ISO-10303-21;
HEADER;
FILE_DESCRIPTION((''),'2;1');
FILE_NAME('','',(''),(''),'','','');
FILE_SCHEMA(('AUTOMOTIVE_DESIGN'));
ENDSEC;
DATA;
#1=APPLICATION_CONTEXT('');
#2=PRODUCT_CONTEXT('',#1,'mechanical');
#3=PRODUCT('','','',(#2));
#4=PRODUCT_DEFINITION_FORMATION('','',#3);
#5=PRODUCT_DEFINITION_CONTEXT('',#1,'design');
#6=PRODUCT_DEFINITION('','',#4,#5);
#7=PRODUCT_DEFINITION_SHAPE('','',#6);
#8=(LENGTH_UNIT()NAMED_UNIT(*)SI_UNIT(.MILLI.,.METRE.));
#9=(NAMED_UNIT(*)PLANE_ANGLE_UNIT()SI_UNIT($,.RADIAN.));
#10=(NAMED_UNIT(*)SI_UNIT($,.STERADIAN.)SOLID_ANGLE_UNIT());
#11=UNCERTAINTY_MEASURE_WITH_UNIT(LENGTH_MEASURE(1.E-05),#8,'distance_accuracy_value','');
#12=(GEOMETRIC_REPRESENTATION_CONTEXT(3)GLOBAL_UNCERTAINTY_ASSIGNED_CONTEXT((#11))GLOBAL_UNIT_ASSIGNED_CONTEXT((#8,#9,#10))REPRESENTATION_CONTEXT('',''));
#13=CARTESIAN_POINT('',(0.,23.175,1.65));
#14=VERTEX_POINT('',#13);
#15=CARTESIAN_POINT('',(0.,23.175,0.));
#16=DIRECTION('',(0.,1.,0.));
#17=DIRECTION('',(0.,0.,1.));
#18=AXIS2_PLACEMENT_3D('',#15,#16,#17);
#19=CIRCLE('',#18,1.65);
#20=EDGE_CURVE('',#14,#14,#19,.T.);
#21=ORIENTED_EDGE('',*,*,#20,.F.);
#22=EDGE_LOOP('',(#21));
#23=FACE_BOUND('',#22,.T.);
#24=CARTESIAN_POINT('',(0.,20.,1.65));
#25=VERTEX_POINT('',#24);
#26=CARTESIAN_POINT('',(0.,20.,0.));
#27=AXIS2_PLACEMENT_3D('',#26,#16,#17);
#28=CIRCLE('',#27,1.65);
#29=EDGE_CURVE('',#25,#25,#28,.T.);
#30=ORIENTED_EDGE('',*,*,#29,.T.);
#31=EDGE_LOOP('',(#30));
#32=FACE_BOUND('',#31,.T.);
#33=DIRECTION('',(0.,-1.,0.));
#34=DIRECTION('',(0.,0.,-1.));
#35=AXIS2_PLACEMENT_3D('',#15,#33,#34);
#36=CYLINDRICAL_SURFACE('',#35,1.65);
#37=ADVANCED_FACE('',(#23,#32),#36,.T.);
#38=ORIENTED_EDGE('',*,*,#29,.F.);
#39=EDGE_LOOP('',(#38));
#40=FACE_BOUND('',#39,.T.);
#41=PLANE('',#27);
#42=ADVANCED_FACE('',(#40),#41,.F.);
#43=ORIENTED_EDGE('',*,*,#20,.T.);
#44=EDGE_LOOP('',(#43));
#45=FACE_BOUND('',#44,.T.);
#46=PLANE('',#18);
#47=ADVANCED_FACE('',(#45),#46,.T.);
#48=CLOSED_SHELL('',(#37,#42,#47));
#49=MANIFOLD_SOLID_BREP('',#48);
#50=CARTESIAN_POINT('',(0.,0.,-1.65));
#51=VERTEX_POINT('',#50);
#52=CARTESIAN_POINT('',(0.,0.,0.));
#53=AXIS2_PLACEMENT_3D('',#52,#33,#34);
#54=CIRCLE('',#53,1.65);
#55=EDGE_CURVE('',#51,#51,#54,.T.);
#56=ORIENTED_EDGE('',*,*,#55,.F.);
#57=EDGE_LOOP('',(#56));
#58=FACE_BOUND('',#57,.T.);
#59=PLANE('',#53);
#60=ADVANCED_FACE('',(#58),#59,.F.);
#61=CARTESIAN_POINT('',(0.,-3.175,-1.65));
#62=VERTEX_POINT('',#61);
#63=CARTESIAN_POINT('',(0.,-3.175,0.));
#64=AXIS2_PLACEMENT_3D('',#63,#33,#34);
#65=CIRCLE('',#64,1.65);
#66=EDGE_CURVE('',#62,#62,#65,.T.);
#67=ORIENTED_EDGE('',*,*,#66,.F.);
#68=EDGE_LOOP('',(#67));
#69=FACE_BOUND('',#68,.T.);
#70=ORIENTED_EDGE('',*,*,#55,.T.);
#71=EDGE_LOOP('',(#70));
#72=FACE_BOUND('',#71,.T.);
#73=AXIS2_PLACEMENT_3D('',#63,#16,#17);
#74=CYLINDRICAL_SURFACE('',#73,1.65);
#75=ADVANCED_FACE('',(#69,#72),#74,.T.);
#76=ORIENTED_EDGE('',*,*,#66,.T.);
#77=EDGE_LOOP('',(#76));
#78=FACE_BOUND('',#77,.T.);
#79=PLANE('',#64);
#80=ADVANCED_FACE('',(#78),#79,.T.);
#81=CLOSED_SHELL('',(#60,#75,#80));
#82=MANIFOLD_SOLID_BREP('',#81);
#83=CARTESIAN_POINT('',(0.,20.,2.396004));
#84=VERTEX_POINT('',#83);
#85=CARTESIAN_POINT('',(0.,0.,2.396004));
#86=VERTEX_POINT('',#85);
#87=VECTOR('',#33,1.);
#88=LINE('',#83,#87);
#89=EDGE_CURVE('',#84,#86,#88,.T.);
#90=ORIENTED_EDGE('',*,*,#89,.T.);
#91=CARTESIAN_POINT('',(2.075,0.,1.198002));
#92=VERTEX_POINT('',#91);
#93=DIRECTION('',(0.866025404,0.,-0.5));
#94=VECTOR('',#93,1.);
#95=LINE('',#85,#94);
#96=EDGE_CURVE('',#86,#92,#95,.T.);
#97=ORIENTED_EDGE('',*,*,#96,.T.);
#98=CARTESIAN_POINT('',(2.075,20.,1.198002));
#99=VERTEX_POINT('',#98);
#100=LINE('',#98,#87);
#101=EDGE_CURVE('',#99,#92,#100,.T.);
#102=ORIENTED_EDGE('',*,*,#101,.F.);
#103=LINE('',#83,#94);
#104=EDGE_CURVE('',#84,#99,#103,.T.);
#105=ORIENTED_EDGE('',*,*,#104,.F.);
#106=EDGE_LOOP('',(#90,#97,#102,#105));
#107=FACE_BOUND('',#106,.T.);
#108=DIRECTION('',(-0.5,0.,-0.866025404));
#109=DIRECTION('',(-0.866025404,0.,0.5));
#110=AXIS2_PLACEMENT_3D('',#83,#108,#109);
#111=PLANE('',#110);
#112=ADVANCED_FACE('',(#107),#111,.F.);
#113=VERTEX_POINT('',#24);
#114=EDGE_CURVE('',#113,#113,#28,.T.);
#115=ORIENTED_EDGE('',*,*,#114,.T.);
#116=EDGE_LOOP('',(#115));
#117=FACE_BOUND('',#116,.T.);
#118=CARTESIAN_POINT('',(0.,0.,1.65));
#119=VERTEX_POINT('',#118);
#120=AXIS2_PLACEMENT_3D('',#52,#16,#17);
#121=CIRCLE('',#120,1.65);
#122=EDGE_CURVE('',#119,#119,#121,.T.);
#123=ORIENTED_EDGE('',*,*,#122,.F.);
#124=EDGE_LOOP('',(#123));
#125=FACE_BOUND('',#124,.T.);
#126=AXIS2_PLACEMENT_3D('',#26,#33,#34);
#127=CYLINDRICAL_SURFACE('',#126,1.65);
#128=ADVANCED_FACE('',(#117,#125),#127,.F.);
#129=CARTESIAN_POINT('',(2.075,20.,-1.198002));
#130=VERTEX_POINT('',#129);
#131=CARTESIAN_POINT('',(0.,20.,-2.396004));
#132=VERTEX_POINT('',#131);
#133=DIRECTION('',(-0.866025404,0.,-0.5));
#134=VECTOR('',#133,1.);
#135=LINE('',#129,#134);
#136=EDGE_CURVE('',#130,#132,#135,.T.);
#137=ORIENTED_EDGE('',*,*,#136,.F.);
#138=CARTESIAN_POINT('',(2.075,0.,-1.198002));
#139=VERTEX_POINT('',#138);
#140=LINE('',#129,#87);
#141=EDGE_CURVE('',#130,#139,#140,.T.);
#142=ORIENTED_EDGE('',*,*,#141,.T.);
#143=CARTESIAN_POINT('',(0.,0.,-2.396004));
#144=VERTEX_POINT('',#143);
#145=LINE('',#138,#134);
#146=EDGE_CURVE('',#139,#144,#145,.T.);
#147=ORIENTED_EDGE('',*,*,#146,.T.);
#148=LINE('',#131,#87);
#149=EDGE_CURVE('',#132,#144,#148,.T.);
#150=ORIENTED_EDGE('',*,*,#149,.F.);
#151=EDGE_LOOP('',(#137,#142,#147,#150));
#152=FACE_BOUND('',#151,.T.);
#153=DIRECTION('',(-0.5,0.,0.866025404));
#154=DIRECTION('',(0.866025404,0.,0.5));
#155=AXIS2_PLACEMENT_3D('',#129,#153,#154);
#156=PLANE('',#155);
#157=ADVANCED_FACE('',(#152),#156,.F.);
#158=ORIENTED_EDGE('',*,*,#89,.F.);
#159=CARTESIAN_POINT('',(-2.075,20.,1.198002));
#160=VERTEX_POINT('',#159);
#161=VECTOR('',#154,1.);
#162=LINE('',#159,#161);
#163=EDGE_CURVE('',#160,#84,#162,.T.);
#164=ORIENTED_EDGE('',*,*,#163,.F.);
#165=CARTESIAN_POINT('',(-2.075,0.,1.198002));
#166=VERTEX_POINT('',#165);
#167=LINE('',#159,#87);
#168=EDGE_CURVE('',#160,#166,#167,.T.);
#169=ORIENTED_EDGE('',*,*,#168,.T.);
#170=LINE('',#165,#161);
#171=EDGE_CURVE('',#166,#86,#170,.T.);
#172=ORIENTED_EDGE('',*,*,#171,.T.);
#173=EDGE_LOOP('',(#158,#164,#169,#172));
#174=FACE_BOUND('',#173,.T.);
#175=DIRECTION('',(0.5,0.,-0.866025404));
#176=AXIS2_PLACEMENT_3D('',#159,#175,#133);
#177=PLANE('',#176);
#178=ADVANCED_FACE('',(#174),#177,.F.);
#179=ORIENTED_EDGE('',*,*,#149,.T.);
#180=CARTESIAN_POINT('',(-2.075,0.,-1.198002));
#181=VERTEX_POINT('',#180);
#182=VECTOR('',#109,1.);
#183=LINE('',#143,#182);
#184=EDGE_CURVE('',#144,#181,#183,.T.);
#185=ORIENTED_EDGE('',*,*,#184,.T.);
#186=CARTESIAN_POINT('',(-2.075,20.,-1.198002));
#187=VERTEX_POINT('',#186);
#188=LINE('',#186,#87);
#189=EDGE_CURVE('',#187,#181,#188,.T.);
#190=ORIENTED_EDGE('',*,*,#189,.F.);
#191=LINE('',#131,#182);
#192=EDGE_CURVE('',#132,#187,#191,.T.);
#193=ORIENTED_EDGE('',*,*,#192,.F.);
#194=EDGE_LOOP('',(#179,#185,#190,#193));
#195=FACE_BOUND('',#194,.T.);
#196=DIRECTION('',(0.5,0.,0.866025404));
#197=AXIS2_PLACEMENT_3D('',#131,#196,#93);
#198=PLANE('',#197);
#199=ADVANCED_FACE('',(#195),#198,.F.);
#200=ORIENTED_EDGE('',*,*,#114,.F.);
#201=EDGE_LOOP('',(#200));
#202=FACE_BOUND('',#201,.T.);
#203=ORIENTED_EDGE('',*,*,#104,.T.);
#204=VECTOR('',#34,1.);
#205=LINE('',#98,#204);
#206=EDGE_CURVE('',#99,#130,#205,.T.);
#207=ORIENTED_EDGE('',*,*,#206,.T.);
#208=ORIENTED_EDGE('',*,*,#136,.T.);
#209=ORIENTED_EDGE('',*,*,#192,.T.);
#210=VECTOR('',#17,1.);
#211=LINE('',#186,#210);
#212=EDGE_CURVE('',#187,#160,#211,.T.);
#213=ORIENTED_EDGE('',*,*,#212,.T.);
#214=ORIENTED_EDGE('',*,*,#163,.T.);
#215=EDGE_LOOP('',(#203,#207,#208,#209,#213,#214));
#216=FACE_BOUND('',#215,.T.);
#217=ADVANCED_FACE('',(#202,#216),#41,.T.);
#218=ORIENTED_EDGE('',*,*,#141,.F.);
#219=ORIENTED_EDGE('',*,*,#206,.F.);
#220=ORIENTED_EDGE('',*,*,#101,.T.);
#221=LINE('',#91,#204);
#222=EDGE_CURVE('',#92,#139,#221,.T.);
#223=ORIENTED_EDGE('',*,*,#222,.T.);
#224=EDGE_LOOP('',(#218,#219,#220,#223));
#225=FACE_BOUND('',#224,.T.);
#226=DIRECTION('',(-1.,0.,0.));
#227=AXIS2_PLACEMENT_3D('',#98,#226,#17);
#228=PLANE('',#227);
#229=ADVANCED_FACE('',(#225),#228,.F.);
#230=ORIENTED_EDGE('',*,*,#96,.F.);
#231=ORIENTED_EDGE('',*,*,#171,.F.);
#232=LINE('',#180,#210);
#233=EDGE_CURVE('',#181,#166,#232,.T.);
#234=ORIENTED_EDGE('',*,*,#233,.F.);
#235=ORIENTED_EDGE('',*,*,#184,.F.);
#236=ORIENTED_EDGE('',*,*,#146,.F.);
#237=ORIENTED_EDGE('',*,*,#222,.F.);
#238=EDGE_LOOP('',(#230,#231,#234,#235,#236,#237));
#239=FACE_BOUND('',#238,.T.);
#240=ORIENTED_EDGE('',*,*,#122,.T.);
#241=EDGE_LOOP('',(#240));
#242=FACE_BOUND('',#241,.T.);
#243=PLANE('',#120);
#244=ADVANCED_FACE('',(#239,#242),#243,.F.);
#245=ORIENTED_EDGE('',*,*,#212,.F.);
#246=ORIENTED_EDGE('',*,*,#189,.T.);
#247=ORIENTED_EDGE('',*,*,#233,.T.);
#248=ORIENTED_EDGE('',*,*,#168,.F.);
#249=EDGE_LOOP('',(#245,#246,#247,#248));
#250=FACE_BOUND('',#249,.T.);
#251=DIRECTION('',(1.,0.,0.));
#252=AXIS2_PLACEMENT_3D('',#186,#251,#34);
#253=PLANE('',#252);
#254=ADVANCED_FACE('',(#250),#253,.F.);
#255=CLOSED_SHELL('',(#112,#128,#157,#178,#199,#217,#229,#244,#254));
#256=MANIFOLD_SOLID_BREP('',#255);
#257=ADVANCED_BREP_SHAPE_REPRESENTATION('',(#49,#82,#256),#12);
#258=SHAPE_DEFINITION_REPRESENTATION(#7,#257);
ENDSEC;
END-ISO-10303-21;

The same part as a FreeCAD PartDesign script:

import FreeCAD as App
import Part
import Sketcher
Q = App.Units.Quantity

doc = App.newDocument("Part")
body = doc.addObject("PartDesign::Body", "Body")

# Sketch on XZ plane
sketch1 = body.newObject("Sketcher::SketchObject", "Sketch")
sketch1.AttachmentSupport = (doc.getObject("XZ_Plane"), [""])
sketch1.MapMode = "FlatFace"
sketch1.addGeometry(Part.LineSegment(App.Vector(0, 2.396004, 0), App.Vector(2.075, 1.198002, 0)), False)
sketch1.addGeometry(Part.LineSegment(App.Vector(2.075, 1.198002, 0), App.Vector(2.075, -1.198002, 0)), False)
sketch1.addGeometry(Part.LineSegment(App.Vector(2.075, -1.198002, 0), App.Vector(0, -2.396004, 0)), False)
sketch1.addGeometry(Part.LineSegment(App.Vector(0, -2.396004, 0), App.Vector(-2.075, -1.198002, 0)), False)
sketch1.addGeometry(Part.LineSegment(App.Vector(-2.075, -1.198002, 0), App.Vector(-2.075, 1.198002, 0)), False)
sketch1.addGeometry(Part.LineSegment(App.Vector(-2.075, 1.198002, 0), App.Vector(0, 2.396004, 0)), False)
sketch1.addGeometry(Part.Circle(App.Vector(0, 0, 0), App.Vector(0, 0, 1), 1.65), False)
sketch1.addConstraint(Sketcher.Constraint("Coincident", 0, 2, 1, 1))
sketch1.addConstraint(Sketcher.Constraint("Coincident", 1, 2, 2, 1))
sketch1.addConstraint(Sketcher.Constraint("Coincident", 2, 2, 3, 1))
sketch1.addConstraint(Sketcher.Constraint("Coincident", 3, 2, 4, 1))
sketch1.addConstraint(Sketcher.Constraint("Coincident", 4, 2, 5, 1))
sketch1.addConstraint(Sketcher.Constraint("Coincident", 5, 2, 0, 1))
sketch1.addConstraint(Sketcher.Constraint("Vertical", 1))
sketch1.addConstraint(Sketcher.Constraint("Vertical", 4))
sketch1.addConstraint(Sketcher.Constraint("Coincident", 6, 3, -1, 1))
sketch1.addConstraint(Sketcher.Constraint("Symmetric", 0, 2, 3, 2, -1, 1))
sketch1.addConstraint(Sketcher.Constraint("Symmetric", 2, 2, 5, 2, -1, 1))
sketch1.addConstraint(Sketcher.Constraint("PointOnObject", 2, 2, -2))
sketch1.addConstraint(Sketcher.Constraint("Parallel", 2, 5))
sketch1.addConstraint(Sketcher.Constraint("Horizontal", 1, 2, 3, 2))
sketch1.addConstraint(Sketcher.Constraint("Diameter", 6, 3.3))
sketch1.addConstraint(Sketcher.Constraint("Angle", 0, Q("-30 deg")))
sketch1.addConstraint(Sketcher.Constraint("DistanceX", 3, 2, 1, 2, 4.15))
sketch1.addConstraint(Sketcher.Constraint("DistanceY", -1, 1, 0, 2, 1.198002))
pad1 = body.newObject("PartDesign::Pad", "Pad")
pad1.Profile = sketch1
pad1.Length = 20
pad1.Reversed = True
body2 = doc.addObject("PartDesign::Body", "Body001")

# Sketch on XZ plane
sketch2 = body2.newObject("Sketcher::SketchObject", "Sketch001")
sketch2.AttachmentSupport = (doc.getObject("XZ_Plane001"), [""])
sketch2.MapMode = "FlatFace"
sketch2.addGeometry(Part.Circle(App.Vector(0, 0, 0), App.Vector(0, 0, 1), 1.65), False)
sketch2.addConstraint(Sketcher.Constraint("Coincident", 0, 3, -1, 1))
sketch2.addConstraint(Sketcher.Constraint("Diameter", 0, 3.3))
pad2 = body2.newObject("PartDesign::Pad", "Pad001")
pad2.Profile = sketch2
pad2.Length = 3.175
body3 = doc.addObject("PartDesign::Body", "Body002")

# Sketch on XZ plane
sketch3 = body3.newObject("Sketcher::SketchObject", "Sketch002")
sketch3.AttachmentSupport = (doc.getObject("XZ_Plane002"), [""])
sketch3.MapMode = "FlatFace"
sketch3.AttachmentOffset = App.Placement(App.Vector(0, 0, -20), App.Rotation())
sketch3.addGeometry(Part.Circle(App.Vector(0, 0, 0), App.Vector(0, 0, 1), 1.65), False)
sketch3.addConstraint(Sketcher.Constraint("Coincident", 0, 3, -1, 1))
sketch3.addConstraint(Sketcher.Constraint("Diameter", 0, 3.3))
pad3 = body3.newObject("PartDesign::Pad", "Pad002")
pad3.Profile = sketch3
pad3.Length = 3.175
pad3.Reversed = True

doc.recompute()
